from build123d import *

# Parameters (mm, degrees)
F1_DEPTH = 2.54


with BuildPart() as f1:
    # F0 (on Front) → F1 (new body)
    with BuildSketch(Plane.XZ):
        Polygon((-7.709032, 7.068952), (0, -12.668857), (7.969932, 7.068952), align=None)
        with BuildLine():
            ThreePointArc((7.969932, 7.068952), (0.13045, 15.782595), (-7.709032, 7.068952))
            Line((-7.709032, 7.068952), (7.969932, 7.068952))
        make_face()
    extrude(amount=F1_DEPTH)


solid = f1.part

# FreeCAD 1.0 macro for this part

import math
import FreeCAD as App
import Part
import Sketcher
from FreeCAD import Vector
Q = App.Units.Quantity

doc = App.newDocument("Part")
params = doc.addObject("Spreadsheet::Sheet", "Params")
for row, (alias, value) in enumerate([
    ("pad1_length", "0.1 in"),
], start=1):
    params.set(f"A{row}", alias)
    params.set(f"B{row}", "=" + value)
    params.setAlias(f"B{row}", alias)

body = doc.addObject("PartDesign::Body", "Body")

sketch1 = body.newObject("Sketcher::SketchObject", "Sketch")
sketch1.AttachmentSupport = (doc.getObject("XZ_Plane"), [""])
sketch1.MapMode = "FlatFace"
sketch1.addGeometry(Part.LineSegment(Vector(-8, 7, 0), Vector(0, -13, 0)), False)
sketch1.addGeometry(Part.LineSegment(Vector(0, -13, 0), Vector(8, 7, 0)), False)
sketch1.addGeometry(Part.ArcOfCircle(Part.Circle(Vector(0, 8, 0), Vector(0, 0, 1), 8), math.radians(-6), math.radians(186)), False)
sketch1.addConstraint(Sketcher.Constraint("Coincident", 0, 2, 1, 1))
sketch1.addConstraint(Sketcher.Constraint("Coincident", 1, 2, 2, 1))
sketch1.addConstraint(Sketcher.Constraint("Coincident", 2, 2, 0, 1))
sketch1.addConstraint(Sketcher.Constraint("PointOnObject", 0, 2, -2))
sketch1.addConstraint(Sketcher.Constraint("Horizontal", 1, 2, 2, 2))
sketch1.addConstraint(Sketcher.Constraint("Radius", 2, Q("7.88333 mm")))
sketch1.addConstraint(Sketcher.Constraint("DistanceX", -1, 1, 2, 3, Q("0.13045 mm")))
sketch1.addConstraint(Sketcher.Constraint("DistanceY", -1, 1, 2, 2, Q("7.068952 mm")))
sketch1.addConstraint(Sketcher.Constraint("DistanceY", 0, 2, 2, 3, Q("20.568122 mm")))
sketch1.addConstraint(Sketcher.Constraint("DistanceY", 0, 2, 1, 2, Q("19.737809 mm")))
pad1 = body.newObject("PartDesign::Pad", "Pad")
pad1.Profile = sketch1
pad1.setExpression("Length", "Params.pad1_length")

doc.recompute()
